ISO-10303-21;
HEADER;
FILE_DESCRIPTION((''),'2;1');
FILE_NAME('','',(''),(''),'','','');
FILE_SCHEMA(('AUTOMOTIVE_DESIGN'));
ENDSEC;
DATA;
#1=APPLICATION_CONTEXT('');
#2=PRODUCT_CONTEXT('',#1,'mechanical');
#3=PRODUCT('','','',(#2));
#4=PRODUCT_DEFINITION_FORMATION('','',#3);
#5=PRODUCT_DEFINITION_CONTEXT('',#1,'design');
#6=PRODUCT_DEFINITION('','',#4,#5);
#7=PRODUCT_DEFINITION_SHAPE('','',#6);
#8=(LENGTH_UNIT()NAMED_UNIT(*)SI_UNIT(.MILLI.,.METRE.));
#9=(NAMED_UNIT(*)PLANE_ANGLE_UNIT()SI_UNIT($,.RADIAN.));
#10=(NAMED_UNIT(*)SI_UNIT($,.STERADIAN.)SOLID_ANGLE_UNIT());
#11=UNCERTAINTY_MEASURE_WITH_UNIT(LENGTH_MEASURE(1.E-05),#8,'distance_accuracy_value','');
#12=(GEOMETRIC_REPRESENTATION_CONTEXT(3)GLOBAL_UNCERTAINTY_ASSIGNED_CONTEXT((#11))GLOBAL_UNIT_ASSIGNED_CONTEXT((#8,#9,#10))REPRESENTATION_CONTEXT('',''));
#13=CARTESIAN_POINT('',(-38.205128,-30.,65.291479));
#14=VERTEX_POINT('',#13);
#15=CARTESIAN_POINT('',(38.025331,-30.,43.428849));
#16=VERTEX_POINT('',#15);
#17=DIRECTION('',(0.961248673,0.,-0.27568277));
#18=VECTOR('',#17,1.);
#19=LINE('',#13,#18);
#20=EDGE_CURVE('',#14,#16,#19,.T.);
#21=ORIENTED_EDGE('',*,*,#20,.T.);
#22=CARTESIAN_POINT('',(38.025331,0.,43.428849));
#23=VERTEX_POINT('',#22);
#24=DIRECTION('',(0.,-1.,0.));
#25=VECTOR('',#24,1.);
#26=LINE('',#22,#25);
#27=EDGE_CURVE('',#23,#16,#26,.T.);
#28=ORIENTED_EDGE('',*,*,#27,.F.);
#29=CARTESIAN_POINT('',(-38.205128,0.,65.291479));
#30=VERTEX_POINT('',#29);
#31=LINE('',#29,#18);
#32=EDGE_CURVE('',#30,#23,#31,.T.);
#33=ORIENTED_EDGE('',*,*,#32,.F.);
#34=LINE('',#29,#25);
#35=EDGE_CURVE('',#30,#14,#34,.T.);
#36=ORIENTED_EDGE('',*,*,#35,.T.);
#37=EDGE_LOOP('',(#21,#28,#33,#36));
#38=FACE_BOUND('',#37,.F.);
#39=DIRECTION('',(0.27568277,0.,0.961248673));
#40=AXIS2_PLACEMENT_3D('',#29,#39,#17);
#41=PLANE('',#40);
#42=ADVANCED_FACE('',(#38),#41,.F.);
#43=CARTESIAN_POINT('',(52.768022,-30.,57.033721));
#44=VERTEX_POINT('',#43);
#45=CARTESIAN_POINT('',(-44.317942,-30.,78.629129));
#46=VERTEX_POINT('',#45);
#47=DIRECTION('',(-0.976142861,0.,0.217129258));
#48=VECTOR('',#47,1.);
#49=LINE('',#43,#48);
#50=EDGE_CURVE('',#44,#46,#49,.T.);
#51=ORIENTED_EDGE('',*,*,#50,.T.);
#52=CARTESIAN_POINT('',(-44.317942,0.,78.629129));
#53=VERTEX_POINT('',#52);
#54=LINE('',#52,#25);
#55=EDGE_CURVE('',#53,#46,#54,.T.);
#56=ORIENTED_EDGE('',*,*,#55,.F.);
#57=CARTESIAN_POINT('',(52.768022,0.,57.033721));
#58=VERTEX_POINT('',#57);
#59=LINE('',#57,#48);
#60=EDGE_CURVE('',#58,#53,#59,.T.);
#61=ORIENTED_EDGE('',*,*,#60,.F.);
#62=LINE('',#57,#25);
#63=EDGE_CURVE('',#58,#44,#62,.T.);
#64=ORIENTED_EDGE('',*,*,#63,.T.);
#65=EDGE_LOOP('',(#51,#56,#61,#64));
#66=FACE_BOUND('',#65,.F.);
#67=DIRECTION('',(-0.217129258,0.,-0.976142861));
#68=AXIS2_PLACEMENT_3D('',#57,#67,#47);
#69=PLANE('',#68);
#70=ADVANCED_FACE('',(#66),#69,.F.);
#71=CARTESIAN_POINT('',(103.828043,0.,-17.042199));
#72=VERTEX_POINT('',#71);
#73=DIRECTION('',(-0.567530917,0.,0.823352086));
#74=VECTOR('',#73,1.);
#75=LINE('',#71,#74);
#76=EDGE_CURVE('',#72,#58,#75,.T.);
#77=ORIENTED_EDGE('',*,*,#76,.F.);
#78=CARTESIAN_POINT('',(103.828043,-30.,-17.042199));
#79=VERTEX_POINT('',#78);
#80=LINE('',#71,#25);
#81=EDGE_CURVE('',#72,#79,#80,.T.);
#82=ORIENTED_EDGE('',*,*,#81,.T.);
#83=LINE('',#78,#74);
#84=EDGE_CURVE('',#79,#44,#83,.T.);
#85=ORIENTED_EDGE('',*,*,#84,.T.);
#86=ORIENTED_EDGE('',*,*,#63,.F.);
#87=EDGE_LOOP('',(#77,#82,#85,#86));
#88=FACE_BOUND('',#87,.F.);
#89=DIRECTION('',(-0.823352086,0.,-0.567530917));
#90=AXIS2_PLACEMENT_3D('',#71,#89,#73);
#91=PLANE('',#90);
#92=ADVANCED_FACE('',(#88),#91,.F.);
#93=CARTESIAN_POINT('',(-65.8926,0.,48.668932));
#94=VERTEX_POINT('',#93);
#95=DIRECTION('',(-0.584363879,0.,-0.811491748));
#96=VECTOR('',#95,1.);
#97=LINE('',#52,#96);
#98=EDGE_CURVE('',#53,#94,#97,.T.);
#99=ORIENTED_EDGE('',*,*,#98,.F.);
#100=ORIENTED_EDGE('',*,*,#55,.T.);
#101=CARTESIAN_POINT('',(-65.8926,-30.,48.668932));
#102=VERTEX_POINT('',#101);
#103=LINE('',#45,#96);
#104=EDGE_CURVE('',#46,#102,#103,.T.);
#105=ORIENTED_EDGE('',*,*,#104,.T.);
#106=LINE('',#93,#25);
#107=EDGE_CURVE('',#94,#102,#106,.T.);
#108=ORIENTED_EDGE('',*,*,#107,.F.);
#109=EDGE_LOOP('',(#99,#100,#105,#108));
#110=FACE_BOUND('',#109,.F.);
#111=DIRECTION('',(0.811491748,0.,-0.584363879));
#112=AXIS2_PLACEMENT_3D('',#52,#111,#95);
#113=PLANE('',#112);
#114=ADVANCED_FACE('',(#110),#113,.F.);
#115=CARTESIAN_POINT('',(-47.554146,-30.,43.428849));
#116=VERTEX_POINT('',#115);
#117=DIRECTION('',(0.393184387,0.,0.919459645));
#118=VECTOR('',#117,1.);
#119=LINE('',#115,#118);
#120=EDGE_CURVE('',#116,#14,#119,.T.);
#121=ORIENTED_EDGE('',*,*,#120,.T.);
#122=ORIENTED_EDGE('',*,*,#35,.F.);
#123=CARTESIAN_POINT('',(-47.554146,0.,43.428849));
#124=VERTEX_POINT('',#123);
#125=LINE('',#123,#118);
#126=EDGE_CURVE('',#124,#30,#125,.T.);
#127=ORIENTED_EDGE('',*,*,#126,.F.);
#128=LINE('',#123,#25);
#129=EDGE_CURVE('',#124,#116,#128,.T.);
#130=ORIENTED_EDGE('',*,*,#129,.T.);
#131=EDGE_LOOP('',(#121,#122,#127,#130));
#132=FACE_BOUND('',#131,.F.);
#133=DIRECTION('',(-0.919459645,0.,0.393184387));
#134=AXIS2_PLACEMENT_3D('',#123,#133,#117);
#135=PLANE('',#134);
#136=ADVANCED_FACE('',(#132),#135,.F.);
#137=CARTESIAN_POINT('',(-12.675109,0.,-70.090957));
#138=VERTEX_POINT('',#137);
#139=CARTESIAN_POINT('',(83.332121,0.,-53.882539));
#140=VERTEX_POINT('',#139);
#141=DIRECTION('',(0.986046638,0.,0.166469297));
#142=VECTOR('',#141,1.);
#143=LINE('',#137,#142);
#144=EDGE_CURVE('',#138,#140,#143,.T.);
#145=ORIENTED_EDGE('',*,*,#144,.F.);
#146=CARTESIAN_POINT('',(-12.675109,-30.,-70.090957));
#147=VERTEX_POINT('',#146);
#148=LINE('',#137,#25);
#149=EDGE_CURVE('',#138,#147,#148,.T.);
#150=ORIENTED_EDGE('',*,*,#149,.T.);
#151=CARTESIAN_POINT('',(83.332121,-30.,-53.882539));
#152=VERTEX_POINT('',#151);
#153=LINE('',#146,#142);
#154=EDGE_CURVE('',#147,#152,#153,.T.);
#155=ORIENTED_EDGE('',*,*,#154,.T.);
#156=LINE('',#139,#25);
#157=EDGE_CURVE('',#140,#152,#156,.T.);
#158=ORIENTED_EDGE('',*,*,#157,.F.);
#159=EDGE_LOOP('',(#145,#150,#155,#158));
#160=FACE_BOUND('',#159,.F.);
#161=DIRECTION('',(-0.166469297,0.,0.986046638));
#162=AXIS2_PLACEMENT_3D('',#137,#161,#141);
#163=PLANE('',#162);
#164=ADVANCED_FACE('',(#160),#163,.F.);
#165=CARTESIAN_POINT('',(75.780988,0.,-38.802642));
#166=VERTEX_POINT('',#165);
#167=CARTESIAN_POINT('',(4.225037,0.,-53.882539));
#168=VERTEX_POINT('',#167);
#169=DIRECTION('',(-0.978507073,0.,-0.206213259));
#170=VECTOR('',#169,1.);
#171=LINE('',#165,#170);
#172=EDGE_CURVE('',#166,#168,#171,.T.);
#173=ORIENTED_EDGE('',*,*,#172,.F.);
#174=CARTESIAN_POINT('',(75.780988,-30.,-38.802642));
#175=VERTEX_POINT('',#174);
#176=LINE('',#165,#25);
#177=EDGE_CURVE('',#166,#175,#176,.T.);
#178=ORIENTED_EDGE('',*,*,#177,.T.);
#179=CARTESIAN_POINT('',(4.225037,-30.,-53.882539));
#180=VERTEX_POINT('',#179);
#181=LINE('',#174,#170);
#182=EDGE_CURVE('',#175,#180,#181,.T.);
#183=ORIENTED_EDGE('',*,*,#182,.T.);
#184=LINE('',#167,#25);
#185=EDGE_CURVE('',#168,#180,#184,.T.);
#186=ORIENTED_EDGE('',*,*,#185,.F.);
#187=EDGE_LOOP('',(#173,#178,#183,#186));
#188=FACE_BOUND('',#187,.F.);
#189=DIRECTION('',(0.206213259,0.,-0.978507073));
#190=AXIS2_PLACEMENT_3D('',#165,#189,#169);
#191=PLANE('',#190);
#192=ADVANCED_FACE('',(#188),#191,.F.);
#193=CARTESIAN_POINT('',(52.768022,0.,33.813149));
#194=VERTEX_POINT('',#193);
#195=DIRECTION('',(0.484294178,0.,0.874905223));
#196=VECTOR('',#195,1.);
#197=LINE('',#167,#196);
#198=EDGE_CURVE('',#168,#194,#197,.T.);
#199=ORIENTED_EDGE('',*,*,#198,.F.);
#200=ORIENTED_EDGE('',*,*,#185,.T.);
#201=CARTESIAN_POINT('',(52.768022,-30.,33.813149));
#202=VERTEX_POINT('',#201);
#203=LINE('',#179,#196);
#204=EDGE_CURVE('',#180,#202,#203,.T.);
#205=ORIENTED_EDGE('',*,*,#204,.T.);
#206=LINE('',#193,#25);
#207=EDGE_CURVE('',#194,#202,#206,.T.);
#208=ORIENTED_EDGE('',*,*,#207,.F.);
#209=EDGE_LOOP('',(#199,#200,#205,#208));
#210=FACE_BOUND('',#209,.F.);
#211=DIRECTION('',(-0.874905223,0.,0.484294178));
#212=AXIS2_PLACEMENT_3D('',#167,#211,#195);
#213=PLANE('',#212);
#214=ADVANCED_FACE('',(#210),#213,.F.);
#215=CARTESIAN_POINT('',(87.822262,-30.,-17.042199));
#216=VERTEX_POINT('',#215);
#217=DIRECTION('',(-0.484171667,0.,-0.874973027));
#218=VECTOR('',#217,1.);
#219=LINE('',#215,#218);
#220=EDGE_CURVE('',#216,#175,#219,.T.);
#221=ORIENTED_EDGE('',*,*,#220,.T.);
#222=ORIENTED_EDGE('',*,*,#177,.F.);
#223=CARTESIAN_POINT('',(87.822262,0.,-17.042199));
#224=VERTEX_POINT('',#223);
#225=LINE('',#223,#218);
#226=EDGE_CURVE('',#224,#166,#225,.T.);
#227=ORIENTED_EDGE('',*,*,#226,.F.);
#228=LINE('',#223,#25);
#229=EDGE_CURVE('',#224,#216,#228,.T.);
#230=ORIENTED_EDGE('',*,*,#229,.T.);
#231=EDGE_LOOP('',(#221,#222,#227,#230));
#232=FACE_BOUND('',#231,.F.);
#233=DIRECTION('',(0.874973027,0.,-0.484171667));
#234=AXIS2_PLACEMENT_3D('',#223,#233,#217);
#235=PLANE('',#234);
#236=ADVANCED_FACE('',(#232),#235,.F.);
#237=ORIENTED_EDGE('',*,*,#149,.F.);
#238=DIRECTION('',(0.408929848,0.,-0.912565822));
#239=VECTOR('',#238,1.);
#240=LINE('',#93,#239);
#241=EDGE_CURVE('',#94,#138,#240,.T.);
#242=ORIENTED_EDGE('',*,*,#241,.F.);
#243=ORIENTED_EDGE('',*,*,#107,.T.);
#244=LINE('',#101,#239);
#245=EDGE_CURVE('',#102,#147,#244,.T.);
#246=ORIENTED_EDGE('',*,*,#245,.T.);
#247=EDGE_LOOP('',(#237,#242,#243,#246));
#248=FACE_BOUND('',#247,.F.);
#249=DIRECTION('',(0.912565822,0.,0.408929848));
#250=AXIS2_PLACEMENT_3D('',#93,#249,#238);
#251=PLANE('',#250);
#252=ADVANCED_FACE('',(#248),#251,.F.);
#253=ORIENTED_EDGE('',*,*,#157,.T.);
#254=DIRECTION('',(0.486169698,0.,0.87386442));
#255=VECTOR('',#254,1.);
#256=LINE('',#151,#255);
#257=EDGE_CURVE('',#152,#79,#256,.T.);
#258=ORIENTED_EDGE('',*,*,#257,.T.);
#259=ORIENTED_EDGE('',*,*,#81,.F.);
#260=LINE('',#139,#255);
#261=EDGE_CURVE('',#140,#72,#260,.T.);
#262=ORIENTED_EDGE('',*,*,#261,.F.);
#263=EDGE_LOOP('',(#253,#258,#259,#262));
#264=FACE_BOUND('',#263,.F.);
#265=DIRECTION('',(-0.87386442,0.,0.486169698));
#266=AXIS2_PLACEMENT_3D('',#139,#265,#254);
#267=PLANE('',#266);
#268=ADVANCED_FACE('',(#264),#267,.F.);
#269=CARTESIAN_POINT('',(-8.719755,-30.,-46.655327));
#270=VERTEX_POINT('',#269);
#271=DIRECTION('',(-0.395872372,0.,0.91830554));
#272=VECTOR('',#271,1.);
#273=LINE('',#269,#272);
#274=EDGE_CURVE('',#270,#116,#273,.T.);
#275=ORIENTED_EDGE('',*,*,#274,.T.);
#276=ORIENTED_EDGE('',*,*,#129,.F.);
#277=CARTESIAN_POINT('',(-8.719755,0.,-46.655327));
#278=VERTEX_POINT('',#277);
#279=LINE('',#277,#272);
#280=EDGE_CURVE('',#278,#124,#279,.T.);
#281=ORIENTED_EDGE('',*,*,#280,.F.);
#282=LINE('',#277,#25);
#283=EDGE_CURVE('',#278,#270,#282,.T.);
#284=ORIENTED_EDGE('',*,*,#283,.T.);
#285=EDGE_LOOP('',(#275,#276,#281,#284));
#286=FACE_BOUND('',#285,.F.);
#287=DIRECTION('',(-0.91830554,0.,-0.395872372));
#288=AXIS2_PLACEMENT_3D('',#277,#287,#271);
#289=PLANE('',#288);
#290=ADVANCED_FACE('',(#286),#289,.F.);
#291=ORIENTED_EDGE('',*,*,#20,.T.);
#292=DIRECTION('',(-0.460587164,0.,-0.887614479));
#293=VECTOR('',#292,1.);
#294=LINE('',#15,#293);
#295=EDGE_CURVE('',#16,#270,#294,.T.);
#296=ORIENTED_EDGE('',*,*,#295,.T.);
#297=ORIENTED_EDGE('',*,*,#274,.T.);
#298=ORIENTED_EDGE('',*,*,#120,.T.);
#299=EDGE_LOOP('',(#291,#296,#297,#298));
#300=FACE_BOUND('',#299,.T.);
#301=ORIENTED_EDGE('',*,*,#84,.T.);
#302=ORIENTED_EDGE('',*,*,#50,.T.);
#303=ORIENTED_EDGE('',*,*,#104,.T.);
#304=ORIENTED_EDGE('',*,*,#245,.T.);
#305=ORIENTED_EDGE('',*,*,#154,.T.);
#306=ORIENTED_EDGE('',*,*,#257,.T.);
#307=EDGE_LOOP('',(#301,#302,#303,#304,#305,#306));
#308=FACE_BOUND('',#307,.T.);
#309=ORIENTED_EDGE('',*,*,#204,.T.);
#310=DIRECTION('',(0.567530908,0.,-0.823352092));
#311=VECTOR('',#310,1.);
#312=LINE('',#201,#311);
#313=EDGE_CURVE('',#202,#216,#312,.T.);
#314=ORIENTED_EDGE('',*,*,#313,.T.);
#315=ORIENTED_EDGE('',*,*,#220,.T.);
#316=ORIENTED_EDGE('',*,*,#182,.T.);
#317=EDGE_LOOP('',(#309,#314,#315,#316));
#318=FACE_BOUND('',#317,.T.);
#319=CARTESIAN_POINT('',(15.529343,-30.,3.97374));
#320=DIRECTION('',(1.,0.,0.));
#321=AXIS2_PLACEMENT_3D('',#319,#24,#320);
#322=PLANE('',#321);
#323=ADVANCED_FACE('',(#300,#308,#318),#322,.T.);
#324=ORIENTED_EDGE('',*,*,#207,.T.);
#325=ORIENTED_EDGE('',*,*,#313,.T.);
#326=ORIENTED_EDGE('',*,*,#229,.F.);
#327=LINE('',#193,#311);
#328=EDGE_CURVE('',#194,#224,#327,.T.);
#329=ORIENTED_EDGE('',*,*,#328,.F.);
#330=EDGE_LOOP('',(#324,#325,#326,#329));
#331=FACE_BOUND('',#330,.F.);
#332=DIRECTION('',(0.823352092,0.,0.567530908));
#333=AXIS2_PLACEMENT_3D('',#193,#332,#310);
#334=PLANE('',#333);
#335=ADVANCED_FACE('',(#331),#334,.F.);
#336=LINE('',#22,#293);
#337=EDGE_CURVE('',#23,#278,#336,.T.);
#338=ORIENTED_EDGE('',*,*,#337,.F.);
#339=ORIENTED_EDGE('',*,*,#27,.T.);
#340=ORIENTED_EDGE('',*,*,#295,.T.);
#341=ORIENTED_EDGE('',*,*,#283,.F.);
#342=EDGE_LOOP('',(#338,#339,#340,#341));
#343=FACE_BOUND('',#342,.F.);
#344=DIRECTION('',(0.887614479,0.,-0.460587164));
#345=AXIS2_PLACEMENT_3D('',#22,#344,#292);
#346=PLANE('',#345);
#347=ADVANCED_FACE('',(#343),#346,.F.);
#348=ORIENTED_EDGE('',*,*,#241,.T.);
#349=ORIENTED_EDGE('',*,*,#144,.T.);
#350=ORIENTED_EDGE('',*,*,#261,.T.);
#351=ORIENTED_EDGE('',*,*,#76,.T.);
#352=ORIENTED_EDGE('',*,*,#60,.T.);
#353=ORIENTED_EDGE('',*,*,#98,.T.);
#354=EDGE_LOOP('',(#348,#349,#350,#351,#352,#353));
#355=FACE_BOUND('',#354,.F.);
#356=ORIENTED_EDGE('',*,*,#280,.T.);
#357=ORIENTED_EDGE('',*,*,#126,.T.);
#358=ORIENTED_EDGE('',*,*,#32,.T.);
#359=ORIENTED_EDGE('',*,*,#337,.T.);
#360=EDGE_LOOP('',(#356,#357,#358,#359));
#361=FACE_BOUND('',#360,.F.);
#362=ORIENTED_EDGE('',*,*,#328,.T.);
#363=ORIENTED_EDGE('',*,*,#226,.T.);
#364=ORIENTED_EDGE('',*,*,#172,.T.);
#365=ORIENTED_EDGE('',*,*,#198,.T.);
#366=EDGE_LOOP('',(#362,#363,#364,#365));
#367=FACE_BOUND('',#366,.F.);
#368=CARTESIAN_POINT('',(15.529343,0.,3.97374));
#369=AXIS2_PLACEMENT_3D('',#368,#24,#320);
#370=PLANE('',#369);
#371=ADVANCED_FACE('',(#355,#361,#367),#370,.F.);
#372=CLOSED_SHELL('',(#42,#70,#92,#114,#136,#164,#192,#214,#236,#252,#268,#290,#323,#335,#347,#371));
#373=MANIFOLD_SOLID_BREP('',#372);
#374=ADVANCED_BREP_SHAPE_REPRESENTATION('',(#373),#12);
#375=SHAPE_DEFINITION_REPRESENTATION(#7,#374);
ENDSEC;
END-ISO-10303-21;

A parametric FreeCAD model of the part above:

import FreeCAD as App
import Part
import Sketcher
Q = App.Units.Quantity

doc = App.newDocument("Part")
body = doc.addObject("PartDesign::Body", "Body")

sketch1 = doc.addObject("Sketcher::SketchObject", "Sketch")
body.addObject(sketch1)
sketch1.AttachmentSupport = (doc.XZ_Plane, [""])
sketch1.MapMode = "FlatFace"
sketch1.addGeometry([
    Part.LineSegment(App.Vector(53, 57, 0), App.Vector(-44, 79, 0)),
    Part.LineSegment(App.Vector(-44, 79, 0), App.Vector(-66, 49, 0)),
    Part.LineSegment(App.Vector(-66, 49, 0), App.Vector(-13, -70, 0)),
    Part.LineSegment(App.Vector(-13, -70, 0), App.Vector(83, -54, 0)),
    Part.LineSegment(App.Vector(83, -54, 0), App.Vector(104, -17, 0)),
    Part.LineSegment(App.Vector(104, -17, 0), App.Vector(53, 57, 0)),
    Part.LineSegment(App.Vector(76, -39, 0), App.Vector(4, -54, 0)),
    Part.LineSegment(App.Vector(4, -54, 0), App.Vector(53, 34, 0)),
    Part.LineSegment(App.Vector(53, 34, 0), App.Vector(88, -17, 0)),
    Part.LineSegment(App.Vector(88, -17, 0), App.Vector(76, -39, 0)),
    Part.LineSegment(App.Vector(-9, -47, 0), App.Vector(-48, 43, 0)),
    Part.LineSegment(App.Vector(-48, 43, 0), App.Vector(-38, 65, 0)),
    Part.LineSegment(App.Vector(-38, 65, 0), App.Vector(38, 43, 0)),
    Part.LineSegment(App.Vector(38, 43, 0), App.Vector(-9, -47, 0)),
], False)
sketch1.addConstraint([
    Sketcher.Constraint("Coincident", 0, 2, 1, 1),
    Sketcher.Constraint("Coincident", 1, 2, 2, 1),
    Sketcher.Constraint("Coincident", 2, 2, 3, 1),
    Sketcher.Constraint("Coincident", 3, 2, 4, 1),
    Sketcher.Constraint("Coincident", 4, 2, 5, 1),
    Sketcher.Constraint("Coincident", 5, 2, 0, 1),
    Sketcher.Constraint("Coincident", 6, 2, 7, 1),
    Sketcher.Constraint("Coincident", 7, 2, 8, 1),
    Sketcher.Constraint("Coincident", 8, 2, 9, 1),
    Sketcher.Constraint("Coincident", 9, 2, 6, 1),
    Sketcher.Constraint("Coincident", 10, 2, 11, 1),
    Sketcher.Constraint("Coincident", 11, 2, 12, 1),
    Sketcher.Constraint("Coincident", 12, 2, 13, 1),
    Sketcher.Constraint("Coincident", 13, 2, 10, 1),
    Sketcher.Constraint("Parallel", 5, 8),
    Sketcher.Constraint("Horizontal", 3, 2, 6, 2),
    Sketcher.Constraint("Horizontal", 4, 2, 8, 2),
    Sketcher.Constraint("Horizontal", 10, 2, 12, 2),
    Sketcher.Constraint("Vertical", 5, 2, 7, 2),
    Sketcher.Constraint("Distance", 7, Q("100.2345 mm")),
    Sketcher.Constraint("DistanceX", 1, 2, -1, 1, Q("65.8926 mm")),
    Sketcher.Constraint("DistanceY", 4, 2, -1, 1, Q("17.042199 mm")),
    Sketcher.Constraint("DistanceX", 5, 2, 3, 2, Q("30.564099 mm")),
    Sketcher.Constraint("DistanceY", 7, 2, 10, 2, Q("9.6157 mm")),
    Sketcher.Constraint("Distance", 3, Q("97.36581 mm")),
    Sketcher.Constraint("Distance", 4, Q("42.157959 mm")),
    Sketcher.Constraint("Distance", 6, Q("73.127679 mm")),
    Sketcher.Constraint("Distance", 8, Q("61.766222 mm")),
    Sketcher.Constraint("Distance", 10, Q("98.09826 mm")),
    Sketcher.Constraint("DistanceY", -1, 1, 0, 2, Q("78.629129 mm")),
    Sketcher.Constraint("DistanceY", -1, 1, 1, 2, Q("48.668932 mm")),
    Sketcher.Constraint("DistanceX", 2, 2, -1, 1, Q("12.675109 mm")),
    Sketcher.Constraint("DistanceX", -1, 1, 3, 2, Q("83.332121 mm")),
    Sketcher.Constraint("DistanceY", 3, 2, -1, 1, Q("53.882539 mm")),
    Sketcher.Constraint("DistanceY", -1, 1, 5, 2, Q("57.033721 mm")),
    Sketcher.Constraint("DistanceX", 11, 2, -1, 1, Q("38.205128 mm")),
    Sketcher.Constraint("DistanceY", -1, 1, 11, 2, Q("65.291479 mm")),
    Sketcher.Constraint("DistanceX", -1, 1, 12, 2, Q("38.025331 mm")),
    Sketcher.Constraint("DistanceX", 6, 2, 9, 2, Q("71.555951 mm")),
    Sketcher.Constraint("DistanceX", 10, 2, 7, 2, Q("100.322168 mm")),
    Sketcher.Constraint("DistanceY", 2, 2, 13, 2, Q("23.43563 mm")),
    Sketcher.Constraint("Distance", 0, Q("99.458766 mm")),
])
pad1 = doc.addObject("PartDesign::Pad", "Pad")
body.addObject(pad1)
pad1.Profile = sketch1
pad1.Length = 30

doc.recompute()
